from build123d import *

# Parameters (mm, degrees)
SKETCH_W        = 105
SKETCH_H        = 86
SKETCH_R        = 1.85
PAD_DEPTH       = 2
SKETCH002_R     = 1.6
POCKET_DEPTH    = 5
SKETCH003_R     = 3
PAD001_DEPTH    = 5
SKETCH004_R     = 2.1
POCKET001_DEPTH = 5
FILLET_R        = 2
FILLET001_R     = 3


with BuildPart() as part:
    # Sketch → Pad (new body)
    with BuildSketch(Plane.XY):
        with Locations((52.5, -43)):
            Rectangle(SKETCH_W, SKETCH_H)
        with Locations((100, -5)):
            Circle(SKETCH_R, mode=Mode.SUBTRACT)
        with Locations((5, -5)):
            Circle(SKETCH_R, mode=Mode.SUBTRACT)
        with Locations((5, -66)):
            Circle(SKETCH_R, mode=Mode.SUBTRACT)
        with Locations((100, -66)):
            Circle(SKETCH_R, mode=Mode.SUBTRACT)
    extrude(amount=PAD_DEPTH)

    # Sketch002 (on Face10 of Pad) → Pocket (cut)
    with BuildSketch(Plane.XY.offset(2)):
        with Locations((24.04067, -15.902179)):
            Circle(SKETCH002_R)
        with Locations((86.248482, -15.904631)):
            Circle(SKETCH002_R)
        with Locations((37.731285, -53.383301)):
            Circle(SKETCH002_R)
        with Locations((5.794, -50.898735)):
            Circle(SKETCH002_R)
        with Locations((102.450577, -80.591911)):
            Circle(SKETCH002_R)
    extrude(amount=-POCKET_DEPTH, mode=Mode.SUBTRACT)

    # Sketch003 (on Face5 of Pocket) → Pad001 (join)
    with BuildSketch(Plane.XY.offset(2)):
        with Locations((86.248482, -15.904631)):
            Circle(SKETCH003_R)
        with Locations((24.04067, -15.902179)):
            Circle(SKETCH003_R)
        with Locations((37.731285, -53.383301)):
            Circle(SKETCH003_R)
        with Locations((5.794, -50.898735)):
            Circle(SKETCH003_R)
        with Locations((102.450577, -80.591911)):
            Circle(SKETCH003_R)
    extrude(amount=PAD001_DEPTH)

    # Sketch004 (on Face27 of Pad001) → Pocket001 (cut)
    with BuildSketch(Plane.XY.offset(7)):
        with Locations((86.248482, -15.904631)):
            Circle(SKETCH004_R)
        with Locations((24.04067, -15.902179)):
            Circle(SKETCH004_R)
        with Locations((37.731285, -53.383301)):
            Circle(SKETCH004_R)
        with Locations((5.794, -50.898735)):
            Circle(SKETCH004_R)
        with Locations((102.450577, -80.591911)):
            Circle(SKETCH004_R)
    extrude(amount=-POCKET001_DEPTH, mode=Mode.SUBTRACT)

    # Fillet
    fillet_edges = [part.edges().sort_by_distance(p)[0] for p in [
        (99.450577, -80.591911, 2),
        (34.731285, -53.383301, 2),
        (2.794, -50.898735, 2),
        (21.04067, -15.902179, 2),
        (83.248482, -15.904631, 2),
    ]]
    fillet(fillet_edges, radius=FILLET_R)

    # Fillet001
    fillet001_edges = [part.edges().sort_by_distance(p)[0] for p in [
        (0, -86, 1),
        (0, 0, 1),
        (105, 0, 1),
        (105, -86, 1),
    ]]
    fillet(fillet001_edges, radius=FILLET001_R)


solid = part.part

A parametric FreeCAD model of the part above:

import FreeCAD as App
import Part
import Sketcher

V = App.Vector


def edges_at(feature, points):
    """Names of the edges that pass closest to the given points."""
    edges = feature.Shape.Edges
    near = lambda p: min(range(len(edges)), key=lambda i: edges[i].distToShape(Part.Vertex(*p))[0])
    return sorted({f"Edge{near(p) + 1}" for p in points})

doc = App.newDocument("Part")
params = doc.addObject("Spreadsheet::Sheet", "Params")
for row, (alias, value) in enumerate([
    ("sketch1_diameter", "3.7 mm"),
    ("sketch1_width", "105 mm"),
    ("sketch1_height", "86 mm"),
    ("pad1_length", "2 mm"),
    ("sketch2_diameter", "3.2 mm"),
    ("pocket1_length", "5 mm"),
    ("sketch3_diameter", "6 mm"),
    ("pad2_length", "5 mm"),
    ("sketch4_diameter", "4.2 mm"),
    ("pocket2_length", "5 mm"),
    ("fillet_radius", "2 mm"),
    ("fillet2_radius", "3 mm"),
], start=1):
    params.set(f"A{row}", alias)
    params.set(f"B{row}", "=" + value)
    params.setAlias(f"B{row}", alias)

body = doc.addObject("PartDesign::Body", "Body")

sketch1 = body.newObject("Sketcher::SketchObject", "Sketch")
sketch1.AttachmentSupport = (doc.getObject("XY_Plane"), [""])
sketch1.MapMode = "FlatFace"
sketch1.addGeometry(Part.LineSegment(V(0, 0, 0), V(0, -86, 0)), False)
sketch1.addGeometry(Part.LineSegment(V(0, -86, 0), V(105, -86, 0)), False)
sketch1.addGeometry(Part.LineSegment(V(105, -86, 0), V(105, 0, 0)), False)
sketch1.addGeometry(Part.LineSegment(V(105, 0, 0), V(0, 0, 0)), False)
sketch1.addGeometry(Part.Circle(V(5, -66, 0), V(0, 0, 1), 1.9), False)
sketch1.addGeometry(Part.Circle(V(100, -66, 0), V(0, 0, 1), 1.9), False)
sketch1.addGeometry(Part.Circle(V(5, -5, 0), V(0, 0, 1), 1.9), False)
sketch1.addGeometry(Part.Circle(V(100, -5, 0), V(0, 0, 1), 1.9), False)
sketch1.addConstraint(Sketcher.Constraint("Coincident", 0, 2, 1, 1))
sketch1.addConstraint(Sketcher.Constraint("Coincident", 1, 2, 2, 1))
sketch1.addConstraint(Sketcher.Constraint("Coincident", 2, 2, 3, 1))
sketch1.addConstraint(Sketcher.Constraint("Coincident", 3, 2, 0, 1))
sketch1.addConstraint(Sketcher.Constraint("Vertical", 0))
sketch1.addConstraint(Sketcher.Constraint("Horizontal", 1))
sketch1.addConstraint(Sketcher.Constraint("Vertical", 2))
sketch1.addConstraint(Sketcher.Constraint("Horizontal", 3))
sketch1.addConstraint(Sketcher.Constraint("Coincident", 3, 2, -1, 1))
sketch1.addConstraint(Sketcher.Constraint("Equal", 4, 5))
sketch1.addConstraint(Sketcher.Constraint("Equal", 5, 6))
sketch1.addConstraint(Sketcher.Constraint("Equal", 6, 7))
sketch1.addConstraint(Sketcher.Constraint("Horizontal", 4, 3, 5, 3))
sketch1.addConstraint(Sketcher.Constraint("Horizontal", 6, 3, 7, 3))
sketch1.addConstraint(Sketcher.Constraint("Vertical", 4, 3, 6, 3))
sketch1.addConstraint(Sketcher.Constraint("Vertical", 5, 3, 7, 3))
sketch1.addConstraint(Sketcher.Constraint("Diameter", 4, 3.7))
sketch1.addConstraint(Sketcher.Constraint("DistanceX", 1, 1, 1, 2, 105.0))
sketch1.addConstraint(Sketcher.Constraint("DistanceY", 0, 2, 0, 1, 86.0))
sketch1.addConstraint(Sketcher.Constraint("DistanceX", -1, 1, 4, 3, 5.0))
sketch1.addConstraint(Sketcher.Constraint("DistanceY", 4, 3, -1, 1, 66.0))
sketch1.addConstraint(Sketcher.Constraint("DistanceX", -1, 1, 5, 3, 100.0))
sketch1.addConstraint(Sketcher.Constraint("DistanceY", 6, 3, -1, 1, 5.0))
sketch1.setExpression("Constraints[16]", "Params.sketch1_diameter")
sketch1.setExpression("Constraints[17]", "Params.sketch1_width")
sketch1.setExpression("Constraints[18]", "Params.sketch1_height")
pad1 = body.newObject("PartDesign::Pad", "Pad")
pad1.Profile = sketch1
pad1.setExpression("Length", "Params.pad1_length")

sketch2 = body.newObject("Sketcher::SketchObject", "Sketch001")
sketch2.AttachmentSupport = (doc.getObject("XY_Plane"), [""])
sketch2.MapMode = "FlatFace"
sketch2.AttachmentOffset = App.Placement(V(0, 0, 2), App.Rotation())
sketch2.addGeometry(Part.Circle(V(24, -15.9, 0), V(0, 0, 1), 1.6), False)
sketch2.addGeometry(Part.Circle(V(86.2, -15.9, 0), V(0, 0, 1), 1.6), False)
sketch2.addGeometry(Part.Circle(V(37.7, -53.4, 0), V(0, 0, 1), 1.6), False)
sketch2.addGeometry(Part.Circle(V(5.8, -50.9, 0), V(0, 0, 1), 1.6), False)
sketch2.addGeometry(Part.Circle(V(102.5, -80.6, 0), V(0, 0, 1), 1.6), False)
sketch2.addConstraint(Sketcher.Constraint("Equal", 0, 1))
sketch2.addConstraint(Sketcher.Constraint("Equal", 1, 2))
sketch2.addConstraint(Sketcher.Constraint("Equal", 2, 3))
sketch2.addConstraint(Sketcher.Constraint("Equal", 3, 4))
sketch2.addConstraint(Sketcher.Constraint("Diameter", 0, 3.2))
sketch2.addConstraint(Sketcher.Constraint("DistanceX", -1, 1, 3, 3, 5.794))
sketch2.addConstraint(Sketcher.Constraint("DistanceY", 2, 3, -1, 1, 53.383301))
sketch2.addConstraint(Sketcher.Constraint("DistanceX", -1, 1, 0, 3, 24.04067))
sketch2.addConstraint(Sketcher.Constraint("DistanceY", 0, 3, -1, 1, 15.902179))
sketch2.addConstraint(Sketcher.Constraint("DistanceX", -1, 1, 1, 3, 86.248482))
sketch2.addConstraint(Sketcher.Constraint("DistanceY", 1, 3, -1, 1, 15.904631))
sketch2.addConstraint(Sketcher.Constraint("DistanceY", 4, 3, -1, 1, 80.591911))
sketch2.addConstraint(Sketcher.Constraint("DistanceX", 2, 3, 4, 3, 64.719292))
sketch2.addConstraint(Sketcher.Constraint("DistanceX", -1, 1, 2, 3, 37.731285))
sketch2.addConstraint(Sketcher.Constraint("DistanceY", 3, 3, -1, 1, 50.898735))
sketch2.setExpression("Constraints[4]", "Params.sketch2_diameter")
pocket1 = body.newObject("PartDesign::Pocket", "Pocket")
pocket1.Profile = sketch2
pocket1.setExpression("Length", "Params.pocket1_length")

sketch3 = body.newObject("Sketcher::SketchObject", "Sketch002")
sketch3.AttachmentSupport = (doc.getObject("XY_Plane"), [""])
sketch3.MapMode = "FlatFace"
sketch3.AttachmentOffset = App.Placement(V(0, 0, 2), App.Rotation())
sketch3.addGeometry(Part.Circle(V(86.2, -15.9, 0), V(0, 0, 1), 3), False)
sketch3.addGeometry(Part.Circle(V(24, -15.9, 0), V(0, 0, 1), 3), False)
sketch3.addGeometry(Part.Circle(V(37.7, -53.4, 0), V(0, 0, 1), 3), False)
sketch3.addGeometry(Part.Circle(V(5.8, -50.9, 0), V(0, 0, 1), 3), False)
sketch3.addGeometry(Part.Circle(V(102.5, -80.6, 0), V(0, 0, 1), 3), False)
sketch3.addConstraint(Sketcher.Constraint("Equal", 0, 1))
sketch3.addConstraint(Sketcher.Constraint("Equal", 1, 2))
sketch3.addConstraint(Sketcher.Constraint("Equal", 2, 3))
sketch3.addConstraint(Sketcher.Constraint("Equal", 3, 4))
sketch3.addConstraint(Sketcher.Constraint("Diameter", 0, 6.0))
sketch3.addConstraint(Sketcher.Constraint("DistanceX", -1, 1, 3, 3, 5.794))
sketch3.addConstraint(Sketcher.Constraint("DistanceY", 2, 3, -1, 1, 53.383301))
sketch3.addConstraint(Sketcher.Constraint("DistanceX", -1, 1, 0, 3, 86.248482))
sketch3.addConstraint(Sketcher.Constraint("DistanceY", 0, 3, -1, 1, 15.904631))
sketch3.addConstraint(Sketcher.Constraint("DistanceX", -1, 1, 1, 3, 24.04067))
sketch3.addConstraint(Sketcher.Constraint("DistanceY", 1, 3, -1, 1, 15.902179))
sketch3.addConstraint(Sketcher.Constraint("DistanceY", 4, 3, -1, 1, 80.591911))
sketch3.addConstraint(Sketcher.Constraint("DistanceX", 2, 3, 4, 3, 64.719292))
sketch3.addConstraint(Sketcher.Constraint("DistanceX", -1, 1, 2, 3, 37.731285))
sketch3.addConstraint(Sketcher.Constraint("DistanceY", 3, 3, -1, 1, 50.898735))
sketch3.setExpression("Constraints[4]", "Params.sketch3_diameter")
pad2 = body.newObject("PartDesign::Pad", "Pad001")
pad2.Profile = sketch3
pad2.setExpression("Length", "Params.pad2_length")

sketch4 = body.newObject("Sketcher::SketchObject", "Sketch003")
sketch4.AttachmentSupport = (doc.getObject("XY_Plane"), [""])
sketch4.MapMode = "FlatFace"
sketch4.AttachmentOffset = App.Placement(V(0, 0, 7), App.Rotation())
sketch4.addGeometry(Part.Circle(V(86.2, -15.9, 0), V(0, 0, 1), 2.1), False)
sketch4.addGeometry(Part.Circle(V(24, -15.9, 0), V(0, 0, 1), 2.1), False)
sketch4.addGeometry(Part.Circle(V(37.7, -53.4, 0), V(0, 0, 1), 2.1), False)
sketch4.addGeometry(Part.Circle(V(5.8, -50.9, 0), V(0, 0, 1), 2.1), False)
sketch4.addGeometry(Part.Circle(V(102.5, -80.6, 0), V(0, 0, 1), 2.1), False)
sketch4.addConstraint(Sketcher.Constraint("Equal", 0, 1))
sketch4.addConstraint(Sketcher.Constraint("Equal", 1, 2))
sketch4.addConstraint(Sketcher.Constraint("Equal", 2, 3))
sketch4.addConstraint(Sketcher.Constraint("Equal", 3, 4))
sketch4.addConstraint(Sketcher.Constraint("Diameter", 0, 4.2))
sketch4.addConstraint(Sketcher.Constraint("DistanceX", -1, 1, 3, 3, 5.794))
sketch4.addConstraint(Sketcher.Constraint("DistanceY", 2, 3, -1, 1, 53.383301))
sketch4.addConstraint(Sketcher.Constraint("DistanceX", -1, 1, 0, 3, 86.248482))
sketch4.addConstraint(Sketcher.Constraint("DistanceY", 0, 3, -1, 1, 15.904631))
sketch4.addConstraint(Sketcher.Constraint("DistanceX", -1, 1, 1, 3, 24.04067))
sketch4.addConstraint(Sketcher.Constraint("DistanceY", 1, 3, -1, 1, 15.902179))
sketch4.addConstraint(Sketcher.Constraint("DistanceY", 4, 3, -1, 1, 80.591911))
sketch4.addConstraint(Sketcher.Constraint("DistanceX", 2, 3, 4, 3, 64.719292))
sketch4.addConstraint(Sketcher.Constraint("DistanceX", -1, 1, 2, 3, 37.731285))
sketch4.addConstraint(Sketcher.Constraint("DistanceY", 3, 3, -1, 1, 50.898735))
sketch4.setExpression("Constraints[4]", "Params.sketch4_diameter")
pocket2 = body.newObject("PartDesign::Pocket", "Pocket001")
pocket2.Profile = sketch4
pocket2.setExpression("Length", "Params.pocket2_length")
doc.recompute()

fillet = body.newObject("PartDesign::Fillet", "Fillet")
fillet.Base = (pocket2, edges_at(pocket2, [
    (99.451, -80.592, 2),
    (34.731, -53.383, 2),
    (2.794, -50.899, 2),
    (21.041, -15.902, 2),
    (83.248, -15.905, 2),
]))
fillet.setExpression("Radius", "Params.fillet_radius")
doc.recompute()

fillet2 = body.newObject("PartDesign::Fillet", "Fillet001")
fillet2.Base = (fillet, edges_at(fillet, [
    (0, -86, 1),
    (0, 0, 1),
    (105, 0, 1),
    (105, -86, 1),
]))
fillet2.setExpression("Radius", "Params.fillet2_radius")

doc.recompute()
